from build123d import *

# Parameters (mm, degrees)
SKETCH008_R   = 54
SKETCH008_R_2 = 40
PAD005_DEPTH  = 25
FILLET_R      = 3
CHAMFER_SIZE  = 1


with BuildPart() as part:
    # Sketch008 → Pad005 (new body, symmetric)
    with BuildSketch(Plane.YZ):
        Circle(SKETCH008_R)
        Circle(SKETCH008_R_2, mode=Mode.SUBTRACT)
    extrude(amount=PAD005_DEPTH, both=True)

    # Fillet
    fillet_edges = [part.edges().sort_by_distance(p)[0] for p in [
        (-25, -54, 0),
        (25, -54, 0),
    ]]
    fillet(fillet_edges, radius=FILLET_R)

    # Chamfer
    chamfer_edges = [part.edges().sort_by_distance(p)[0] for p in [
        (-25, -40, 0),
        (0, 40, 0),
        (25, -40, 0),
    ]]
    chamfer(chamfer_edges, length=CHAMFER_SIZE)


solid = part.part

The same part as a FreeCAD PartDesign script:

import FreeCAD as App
import Part
import Sketcher
from FreeCAD import Vector


def edges_at(feature, points):
    """Names of the edges that pass closest to the given points."""
    edges = feature.Shape.Edges
    near = lambda p: min(range(len(edges)), key=lambda i: edges[i].distToShape(Part.Vertex(*p))[0])
    return sorted({f"Edge{near(p) + 1}" for p in points})

doc = App.newDocument("Part")
body = doc.addObject("PartDesign::Body", "Body")

# Sketch on YZ plane
sketch1 = body.newObject("Sketcher::SketchObject", "Sketch")
sketch1.AttachmentSupport = (doc.getObject("YZ_Plane"), [""])
sketch1.MapMode = "FlatFace"
sketch1.addGeometry(Part.Circle(Vector(0, 0, 0), Vector(0, 0, 1), 54), False)
sketch1.addGeometry(Part.Circle(Vector(0, 0, 0), Vector(0, 0, 1), 40), False)
sketch1.addConstraint(Sketcher.Constraint("Coincident", 0, 3, -1, 1))
sketch1.addConstraint(Sketcher.Constraint("Coincident", 1, 3, -1, 1))
sketch1.addConstraint(Sketcher.Constraint("Diameter", 0, 108.0))
sketch1.addConstraint(Sketcher.Constraint("Diameter", 1, 80.0))
pad1 = body.newObject("PartDesign::Pad", "Pad")
pad1.Profile = sketch1
pad1.Length = 50
pad1.Midplane = True
doc.recompute()

fillet = body.newObject("PartDesign::Fillet", "Fillet")
fillet.Base = (pad1, edges_at(pad1, [(-25, -54, 0), (25, -54, 0)]))
fillet.Radius = 3
doc.recompute()

chamfer = body.newObject("PartDesign::Chamfer", "Chamfer")
chamfer.Base = (fillet, edges_at(fillet, [(-25, -40, 0), (0, 40, 0), (25, -40, 0)]))
chamfer.Size = 1

doc.recompute()
